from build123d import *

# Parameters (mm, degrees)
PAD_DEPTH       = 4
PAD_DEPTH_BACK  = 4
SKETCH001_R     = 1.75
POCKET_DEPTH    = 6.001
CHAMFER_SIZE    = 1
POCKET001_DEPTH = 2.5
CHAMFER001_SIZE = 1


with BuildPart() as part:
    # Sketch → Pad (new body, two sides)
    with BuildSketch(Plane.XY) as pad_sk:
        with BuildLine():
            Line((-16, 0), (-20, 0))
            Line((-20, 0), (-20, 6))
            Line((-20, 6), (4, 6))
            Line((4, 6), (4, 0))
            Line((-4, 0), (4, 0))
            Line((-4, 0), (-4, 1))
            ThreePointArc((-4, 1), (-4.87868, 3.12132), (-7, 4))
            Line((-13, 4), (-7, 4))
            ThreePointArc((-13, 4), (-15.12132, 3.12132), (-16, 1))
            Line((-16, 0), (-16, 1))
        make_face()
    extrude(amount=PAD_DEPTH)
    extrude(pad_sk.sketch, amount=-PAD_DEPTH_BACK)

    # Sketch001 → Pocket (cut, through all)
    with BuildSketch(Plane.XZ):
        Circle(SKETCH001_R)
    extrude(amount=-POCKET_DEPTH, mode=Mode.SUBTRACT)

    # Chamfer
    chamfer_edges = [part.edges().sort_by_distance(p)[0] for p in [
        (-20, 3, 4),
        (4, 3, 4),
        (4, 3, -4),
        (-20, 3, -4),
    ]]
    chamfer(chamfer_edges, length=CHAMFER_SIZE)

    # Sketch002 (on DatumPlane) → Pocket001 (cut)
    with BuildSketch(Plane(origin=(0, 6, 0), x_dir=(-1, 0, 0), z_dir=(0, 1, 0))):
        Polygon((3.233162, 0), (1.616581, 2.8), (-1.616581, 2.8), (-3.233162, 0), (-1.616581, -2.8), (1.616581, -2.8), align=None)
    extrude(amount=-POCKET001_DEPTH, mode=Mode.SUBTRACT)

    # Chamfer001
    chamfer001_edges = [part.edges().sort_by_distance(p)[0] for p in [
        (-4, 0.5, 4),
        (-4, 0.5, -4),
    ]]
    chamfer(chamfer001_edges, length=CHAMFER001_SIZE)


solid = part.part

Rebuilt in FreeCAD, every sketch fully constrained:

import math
import FreeCAD as App
import Part
import Sketcher
Q = App.Units.Quantity


def edges_at(feature, points):
    """Names of the edges that pass closest to the given points."""
    edges = feature.Shape.Edges
    near = lambda p: min(range(len(edges)), key=lambda i: edges[i].distToShape(Part.Vertex(*p))[0])
    return sorted({f"Edge{near(p) + 1}" for p in points})

doc = App.newDocument("Part")
body = doc.addObject("PartDesign::Body", "Body")

# Sketch on XY plane
sketch1 = doc.addObject("Sketcher::SketchObject", "Sketch")
body.addObject(sketch1)
sketch1.AttachmentSupport = (doc.XY_Plane, [""])
sketch1.MapMode = "FlatFace"
sketch1.addGeometry(Part.LineSegment(App.Vector(-20, 0, 0), App.Vector(-16, 0, 0)), False)
sketch1.addGeometry(Part.LineSegment(App.Vector(-16, 0, 0), App.Vector(-16, 1, 0)), False)
sketch1.addGeometry(Part.ArcOfCircle(Part.Circle(App.Vector(-12.999999, 0.999999, 0), App.Vector(0, 0, 1), 3.000001), math.radians(90.000022), math.radians(179.999978)), False)
sketch1.addGeometry(Part.LineSegment(App.Vector(-13, 4, 0), App.Vector(-7, 4, 0)), False)
sketch1.addGeometry(Part.ArcOfCircle(Part.Circle(App.Vector(-7.000001, 0.999999, 0), App.Vector(0, 0, 1), 3.000001), math.radians(0.000022), math.radians(89.999978)), False)
sketch1.addGeometry(Part.LineSegment(App.Vector(-4, 1, 0), App.Vector(-4, 0, 0)), False)
sketch1.addGeometry(Part.LineSegment(App.Vector(-4, 0, 0), App.Vector(4, 0, 0)), False)
sketch1.addGeometry(Part.LineSegment(App.Vector(4, 0, 0), App.Vector(4, 6, 0)), False)
sketch1.addGeometry(Part.LineSegment(App.Vector(4, 6, 0), App.Vector(-20, 6, 0)), False)
sketch1.addGeometry(Part.LineSegment(App.Vector(-20, 6, 0), App.Vector(-20, 0, 0)), False)
sketch1.addConstraint(Sketcher.Constraint("Coincident", 0, 2, 1, 1))
sketch1.addConstraint(Sketcher.Constraint("Tangent", 1, 2, 2, 2))
sketch1.addConstraint(Sketcher.Constraint("Tangent", 2, 1, 3, 1))
sketch1.addConstraint(Sketcher.Constraint("Tangent", 3, 2, 4, 2))
sketch1.addConstraint(Sketcher.Constraint("Tangent", 4, 1, 5, 1))
sketch1.addConstraint(Sketcher.Constraint("Coincident", 5, 2, 6, 1))
sketch1.addConstraint(Sketcher.Constraint("Coincident", 6, 2, 7, 1))
sketch1.addConstraint(Sketcher.Constraint("Coincident", 7, 2, 8, 1))
sketch1.addConstraint(Sketcher.Constraint("Coincident", 8, 2, 9, 1))
sketch1.addConstraint(Sketcher.Constraint("Coincident", 9, 2, 0, 1))
sketch1.addConstraint(Sketcher.Constraint("Horizontal", 0))
sketch1.addConstraint(Sketcher.Constraint("Vertical", 1))
sketch1.addConstraint(Sketcher.Constraint("Horizontal", 3))
sketch1.addConstraint(Sketcher.Constraint("Vertical", 5))
sketch1.addConstraint(Sketcher.Constraint("Horizontal", 6))
sketch1.addConstraint(Sketcher.Constraint("Vertical", 7))
sketch1.addConstraint(Sketcher.Constraint("Horizontal", 8))
sketch1.addConstraint(Sketcher.Constraint("Vertical", 9))
sketch1.addConstraint(Sketcher.Constraint("Equal", 2, 4))
sketch1.addConstraint(Sketcher.Constraint("Symmetric", 5, 2, 6, 2, -1, 1))
sketch1.addConstraint(Sketcher.Constraint("PointOnObject", 0, 2, -1))
sketch1.addConstraint(Sketcher.Constraint("Equal", 3, 7))
sketch1.addConstraint(Sketcher.Constraint("Radius", 2, 3.000001))
sketch1.addConstraint(Sketcher.Constraint("DistanceX", 0, 1, 0, 2, 4.0))
sketch1.addConstraint(Sketcher.Constraint("DistanceX", 3, 1, 3, 2, 6.0))
sketch1.addConstraint(Sketcher.Constraint("DistanceX", 6, 1, 6, 2, 8.0))
sketch1.addConstraint(Sketcher.Constraint("DistanceY", 1, 1, 1, 2, 1.0))
pad1 = doc.addObject("PartDesign::Pad", "Pad")
body.addObject(pad1)
pad1.Profile = sketch1
pad1.Type = "TwoLengths"
pad1.Length = 4
pad1.Length2 = 4

# Sketch on XZ plane
sketch2 = doc.addObject("Sketcher::SketchObject", "Sketch001")
body.addObject(sketch2)
sketch2.AttachmentSupport = (doc.XZ_Plane, [""])
sketch2.MapMode = "FlatFace"
sketch2.addGeometry(Part.Circle(App.Vector(0, 0, 0), App.Vector(0, 0, 1), 1.75), False)
sketch2.addConstraint(Sketcher.Constraint("Coincident", 0, 3, -1, 1))
sketch2.addConstraint(Sketcher.Constraint("Diameter", 0, 3.5))
pocket1 = doc.addObject("PartDesign::Pocket", "Pocket")
body.addObject(pocket1)
pocket1.Profile = sketch2
pocket1.Type = "ThroughAll"
doc.recompute()

chamfer = doc.addObject("PartDesign::Chamfer", "Chamfer")
body.addObject(chamfer)
chamfer.Base = (pocket1, edges_at(pocket1, [
    (-20, 3, 4),
    (4, 3, 4),
    (4, 3, -4),
    (-20, 3, -4),
]))
chamfer.Size = 1

# Sketch on XZ plane
sketch3 = doc.addObject("Sketcher::SketchObject", "Sketch002")
body.addObject(sketch3)
sketch3.AttachmentSupport = (doc.XZ_Plane, [""])
sketch3.MapMode = "FlatFace"
sketch3.AttachmentOffset = App.Placement(App.Vector(0, 0, -6), App.Rotation())
sketch3.addGeometry(Part.LineSegment(App.Vector(-3.233162, 0, 0), App.Vector(-1.616581, 2.8, 0)), False)
sketch3.addGeometry(Part.LineSegment(App.Vector(-1.616581, 2.8, 0), App.Vector(1.616581, 2.8, 0)), False)
sketch3.addGeometry(Part.LineSegment(App.Vector(1.616581, 2.8, 0), App.Vector(3.233162, 0, 0)), False)
sketch3.addGeometry(Part.LineSegment(App.Vector(3.233162, 0, 0), App.Vector(1.616581, -2.8, 0)), False)
sketch3.addGeometry(Part.LineSegment(App.Vector(1.616581, -2.8, 0), App.Vector(-1.616581, -2.8, 0)), False)
sketch3.addGeometry(Part.LineSegment(App.Vector(-1.616581, -2.8, 0), App.Vector(-3.233162, 0, 0)), False)
sketch3.addConstraint(Sketcher.Constraint("Coincident", 0, 2, 1, 1))
sketch3.addConstraint(Sketcher.Constraint("Coincident", 1, 2, 2, 1))
sketch3.addConstraint(Sketcher.Constraint("Coincident", 2, 2, 3, 1))
sketch3.addConstraint(Sketcher.Constraint("Coincident", 3, 2, 4, 1))
sketch3.addConstraint(Sketcher.Constraint("Coincident", 4, 2, 5, 1))
sketch3.addConstraint(Sketcher.Constraint("Coincident", 5, 2, 0, 1))
sketch3.addConstraint(Sketcher.Constraint("Horizontal", 1))
sketch3.addConstraint(Sketcher.Constraint("Horizontal", 4))
sketch3.addConstraint(Sketcher.Constraint("Symmetric", 0, 2, 3, 2, -1, 1))
sketch3.addConstraint(Sketcher.Constraint("Symmetric", 2, 2, 5, 2, -1, 1))
sketch3.addConstraint(Sketcher.Constraint("PointOnObject", 2, 2, -1))
sketch3.addConstraint(Sketcher.Constraint("Parallel", 2, 5))
sketch3.addConstraint(Sketcher.Constraint("Vertical", 1, 2, 3, 2))
sketch3.addConstraint(Sketcher.Constraint("Angle", 0, Q("59.999996 deg")))
sketch3.addConstraint(Sketcher.Constraint("DistanceY", -1, 1, 0, 2, 2.8))
sketch3.addConstraint(Sketcher.Constraint("DistanceX", 1, 1, 1, 2, 3.233162))
pocket2 = doc.addObject("PartDesign::Pocket", "Pocket001")
body.addObject(pocket2)
pocket2.Profile = sketch3
pocket2.Length = 2.5
pocket2.Reversed = True
doc.recompute()

chamfer2 = doc.addObject("PartDesign::Chamfer", "Chamfer001")
body.addObject(chamfer2)
chamfer2.Base = (pocket2, edges_at(pocket2, [(-4, 0.5, 4), (-4, 0.5, -4)]))
chamfer2.Size = 1

doc.recompute()
